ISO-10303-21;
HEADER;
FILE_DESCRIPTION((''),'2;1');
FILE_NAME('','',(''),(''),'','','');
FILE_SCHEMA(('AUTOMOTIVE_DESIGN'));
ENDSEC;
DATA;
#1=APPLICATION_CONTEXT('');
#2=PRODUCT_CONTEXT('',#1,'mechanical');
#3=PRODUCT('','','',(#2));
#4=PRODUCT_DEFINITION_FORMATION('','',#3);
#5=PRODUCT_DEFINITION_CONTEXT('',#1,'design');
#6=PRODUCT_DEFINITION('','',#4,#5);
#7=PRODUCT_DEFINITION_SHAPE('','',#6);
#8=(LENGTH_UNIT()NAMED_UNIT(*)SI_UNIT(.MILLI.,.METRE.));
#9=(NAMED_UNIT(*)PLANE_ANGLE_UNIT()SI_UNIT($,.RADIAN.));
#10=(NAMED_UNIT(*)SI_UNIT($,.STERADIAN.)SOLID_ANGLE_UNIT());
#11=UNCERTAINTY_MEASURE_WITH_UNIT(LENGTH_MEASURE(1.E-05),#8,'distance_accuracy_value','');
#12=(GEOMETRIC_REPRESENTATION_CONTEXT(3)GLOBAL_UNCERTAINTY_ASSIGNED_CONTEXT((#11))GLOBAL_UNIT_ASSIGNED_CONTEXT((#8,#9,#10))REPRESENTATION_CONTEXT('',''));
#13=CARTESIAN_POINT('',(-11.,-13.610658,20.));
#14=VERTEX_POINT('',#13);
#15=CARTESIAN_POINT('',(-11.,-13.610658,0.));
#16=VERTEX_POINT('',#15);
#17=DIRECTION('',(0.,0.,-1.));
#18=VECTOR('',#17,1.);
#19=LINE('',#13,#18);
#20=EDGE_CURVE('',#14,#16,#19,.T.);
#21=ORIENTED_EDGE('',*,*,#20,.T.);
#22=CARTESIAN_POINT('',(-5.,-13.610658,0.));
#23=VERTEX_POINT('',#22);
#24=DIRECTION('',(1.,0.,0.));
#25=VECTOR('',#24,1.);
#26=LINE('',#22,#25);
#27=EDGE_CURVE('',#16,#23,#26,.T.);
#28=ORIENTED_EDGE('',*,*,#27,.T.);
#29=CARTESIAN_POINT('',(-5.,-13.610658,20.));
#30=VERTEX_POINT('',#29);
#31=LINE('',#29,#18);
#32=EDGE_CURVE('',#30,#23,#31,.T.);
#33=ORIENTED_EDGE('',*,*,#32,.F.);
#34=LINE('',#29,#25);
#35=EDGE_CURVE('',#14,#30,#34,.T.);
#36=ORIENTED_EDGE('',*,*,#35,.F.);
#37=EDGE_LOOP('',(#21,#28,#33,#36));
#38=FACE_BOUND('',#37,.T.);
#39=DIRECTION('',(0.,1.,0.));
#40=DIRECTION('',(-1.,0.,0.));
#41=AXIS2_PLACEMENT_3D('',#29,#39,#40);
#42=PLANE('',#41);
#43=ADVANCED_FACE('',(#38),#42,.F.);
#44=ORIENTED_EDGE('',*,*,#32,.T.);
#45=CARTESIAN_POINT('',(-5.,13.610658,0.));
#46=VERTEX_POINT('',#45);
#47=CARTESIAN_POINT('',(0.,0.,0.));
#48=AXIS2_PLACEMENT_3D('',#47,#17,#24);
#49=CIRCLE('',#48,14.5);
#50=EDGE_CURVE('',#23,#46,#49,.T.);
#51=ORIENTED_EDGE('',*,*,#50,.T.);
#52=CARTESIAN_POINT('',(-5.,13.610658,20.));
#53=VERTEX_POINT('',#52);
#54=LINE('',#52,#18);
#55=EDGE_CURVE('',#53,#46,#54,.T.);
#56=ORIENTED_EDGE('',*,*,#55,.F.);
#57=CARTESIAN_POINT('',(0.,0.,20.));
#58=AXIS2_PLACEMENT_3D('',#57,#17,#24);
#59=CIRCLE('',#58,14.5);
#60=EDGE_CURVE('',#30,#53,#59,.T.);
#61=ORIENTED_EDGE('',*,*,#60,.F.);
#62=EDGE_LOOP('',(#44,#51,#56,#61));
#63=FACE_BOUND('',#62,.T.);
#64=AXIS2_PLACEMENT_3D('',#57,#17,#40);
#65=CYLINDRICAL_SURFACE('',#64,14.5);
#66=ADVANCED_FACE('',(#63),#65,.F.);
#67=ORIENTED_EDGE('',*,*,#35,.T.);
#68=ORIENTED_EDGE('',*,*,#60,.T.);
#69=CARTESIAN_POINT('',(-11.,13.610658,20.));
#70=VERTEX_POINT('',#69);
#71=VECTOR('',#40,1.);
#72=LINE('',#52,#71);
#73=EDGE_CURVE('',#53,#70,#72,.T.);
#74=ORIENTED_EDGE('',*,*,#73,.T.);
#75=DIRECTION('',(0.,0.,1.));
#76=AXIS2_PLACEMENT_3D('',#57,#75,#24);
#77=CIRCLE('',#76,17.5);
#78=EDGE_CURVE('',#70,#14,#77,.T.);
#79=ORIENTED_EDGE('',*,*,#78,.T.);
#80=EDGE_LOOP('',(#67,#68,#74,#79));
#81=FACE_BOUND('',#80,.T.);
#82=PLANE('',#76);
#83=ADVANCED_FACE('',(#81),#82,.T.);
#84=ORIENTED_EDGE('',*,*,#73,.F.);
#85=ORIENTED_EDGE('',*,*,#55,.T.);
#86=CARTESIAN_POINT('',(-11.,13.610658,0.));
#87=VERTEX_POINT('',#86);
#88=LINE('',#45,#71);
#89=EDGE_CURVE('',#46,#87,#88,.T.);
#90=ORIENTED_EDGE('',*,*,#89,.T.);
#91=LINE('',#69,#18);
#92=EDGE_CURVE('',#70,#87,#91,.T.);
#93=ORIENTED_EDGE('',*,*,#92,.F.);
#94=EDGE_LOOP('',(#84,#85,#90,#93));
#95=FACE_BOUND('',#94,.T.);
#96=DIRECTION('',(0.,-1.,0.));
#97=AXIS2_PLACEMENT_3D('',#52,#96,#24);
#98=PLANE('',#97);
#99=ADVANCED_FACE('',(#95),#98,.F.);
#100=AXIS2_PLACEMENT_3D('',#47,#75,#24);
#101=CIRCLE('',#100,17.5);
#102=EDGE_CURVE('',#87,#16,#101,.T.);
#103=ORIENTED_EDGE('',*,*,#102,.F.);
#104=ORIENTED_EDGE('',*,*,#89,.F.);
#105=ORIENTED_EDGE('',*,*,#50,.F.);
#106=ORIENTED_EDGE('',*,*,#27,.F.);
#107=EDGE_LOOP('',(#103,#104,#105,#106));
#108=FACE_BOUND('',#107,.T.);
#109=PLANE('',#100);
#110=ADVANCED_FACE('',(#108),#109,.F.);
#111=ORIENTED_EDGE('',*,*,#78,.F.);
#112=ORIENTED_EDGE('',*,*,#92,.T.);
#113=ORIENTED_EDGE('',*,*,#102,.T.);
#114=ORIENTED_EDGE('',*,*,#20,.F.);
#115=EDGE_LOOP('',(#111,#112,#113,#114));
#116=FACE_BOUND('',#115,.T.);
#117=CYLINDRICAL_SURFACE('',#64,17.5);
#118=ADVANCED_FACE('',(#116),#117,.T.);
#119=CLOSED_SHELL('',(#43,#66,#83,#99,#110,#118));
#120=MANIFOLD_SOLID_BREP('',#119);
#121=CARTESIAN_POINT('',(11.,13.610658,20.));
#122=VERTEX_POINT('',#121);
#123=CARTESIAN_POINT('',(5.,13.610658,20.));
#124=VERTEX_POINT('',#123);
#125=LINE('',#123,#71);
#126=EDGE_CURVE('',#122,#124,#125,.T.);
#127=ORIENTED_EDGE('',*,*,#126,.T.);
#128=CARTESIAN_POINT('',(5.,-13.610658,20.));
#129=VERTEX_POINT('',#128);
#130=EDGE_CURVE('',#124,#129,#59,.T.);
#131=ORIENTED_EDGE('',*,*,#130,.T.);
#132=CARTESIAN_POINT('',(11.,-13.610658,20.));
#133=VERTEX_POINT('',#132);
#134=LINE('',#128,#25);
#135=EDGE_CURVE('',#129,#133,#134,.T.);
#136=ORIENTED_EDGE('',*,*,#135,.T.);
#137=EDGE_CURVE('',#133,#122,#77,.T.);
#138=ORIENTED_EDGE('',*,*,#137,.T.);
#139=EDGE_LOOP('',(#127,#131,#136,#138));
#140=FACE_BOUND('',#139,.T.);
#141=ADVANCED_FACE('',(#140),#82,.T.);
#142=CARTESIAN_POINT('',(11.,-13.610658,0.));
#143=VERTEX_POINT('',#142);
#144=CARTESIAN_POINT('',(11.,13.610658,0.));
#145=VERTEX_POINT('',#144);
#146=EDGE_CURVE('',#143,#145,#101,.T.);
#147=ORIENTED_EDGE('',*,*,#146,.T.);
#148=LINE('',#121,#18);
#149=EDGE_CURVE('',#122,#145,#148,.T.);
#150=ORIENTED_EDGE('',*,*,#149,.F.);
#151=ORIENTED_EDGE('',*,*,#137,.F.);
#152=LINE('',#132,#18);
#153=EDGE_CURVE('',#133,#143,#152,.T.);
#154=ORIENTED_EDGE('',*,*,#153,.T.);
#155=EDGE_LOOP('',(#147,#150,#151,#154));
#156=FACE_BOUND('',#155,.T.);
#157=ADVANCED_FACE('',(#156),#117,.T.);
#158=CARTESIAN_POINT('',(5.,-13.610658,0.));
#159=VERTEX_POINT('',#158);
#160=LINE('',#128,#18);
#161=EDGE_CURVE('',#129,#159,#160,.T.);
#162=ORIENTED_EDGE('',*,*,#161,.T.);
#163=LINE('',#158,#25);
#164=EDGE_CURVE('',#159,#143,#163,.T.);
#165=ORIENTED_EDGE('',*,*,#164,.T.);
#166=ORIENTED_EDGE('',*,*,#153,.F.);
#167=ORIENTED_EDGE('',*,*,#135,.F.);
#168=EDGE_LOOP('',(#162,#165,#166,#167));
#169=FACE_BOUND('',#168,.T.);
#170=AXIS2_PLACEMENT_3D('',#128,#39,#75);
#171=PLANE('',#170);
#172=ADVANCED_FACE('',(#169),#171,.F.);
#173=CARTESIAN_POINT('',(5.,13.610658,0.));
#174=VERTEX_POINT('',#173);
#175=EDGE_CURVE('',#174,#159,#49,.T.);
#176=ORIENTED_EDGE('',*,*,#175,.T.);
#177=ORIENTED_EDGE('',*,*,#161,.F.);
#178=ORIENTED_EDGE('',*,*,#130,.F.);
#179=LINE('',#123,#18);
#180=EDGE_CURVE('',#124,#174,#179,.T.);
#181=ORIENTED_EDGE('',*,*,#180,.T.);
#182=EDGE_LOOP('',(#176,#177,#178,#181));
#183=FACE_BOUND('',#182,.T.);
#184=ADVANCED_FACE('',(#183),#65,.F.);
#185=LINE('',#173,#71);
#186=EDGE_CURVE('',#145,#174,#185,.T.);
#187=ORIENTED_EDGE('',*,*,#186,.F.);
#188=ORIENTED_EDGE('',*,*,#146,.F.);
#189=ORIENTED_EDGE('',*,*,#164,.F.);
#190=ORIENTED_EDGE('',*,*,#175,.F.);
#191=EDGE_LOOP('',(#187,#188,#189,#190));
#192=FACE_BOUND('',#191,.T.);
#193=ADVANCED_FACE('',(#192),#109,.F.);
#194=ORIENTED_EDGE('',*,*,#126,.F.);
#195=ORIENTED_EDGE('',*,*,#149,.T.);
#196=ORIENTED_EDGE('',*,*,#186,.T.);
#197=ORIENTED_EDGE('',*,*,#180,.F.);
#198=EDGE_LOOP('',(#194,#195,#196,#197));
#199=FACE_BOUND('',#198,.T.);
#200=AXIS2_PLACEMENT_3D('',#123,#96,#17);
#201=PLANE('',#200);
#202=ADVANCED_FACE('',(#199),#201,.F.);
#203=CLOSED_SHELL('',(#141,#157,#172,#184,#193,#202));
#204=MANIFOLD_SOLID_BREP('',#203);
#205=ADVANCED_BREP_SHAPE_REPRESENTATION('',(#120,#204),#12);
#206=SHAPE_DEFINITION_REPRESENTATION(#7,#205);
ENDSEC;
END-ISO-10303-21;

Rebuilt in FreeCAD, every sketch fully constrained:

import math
import FreeCAD as App
import Part
import Sketcher

doc = App.newDocument("Part")
params = doc.addObject("Spreadsheet::Sheet", "Params")
for row, (alias, value) in enumerate([
    ("sketch1_radius", "17.5 mm"),
    ("sketch1_radius2", "14.5 mm"),
    ("sketch1_width", "6 mm"),
    ("pad1_length", "20 mm"),
    ("sketch2_radius", "14.5 mm"),
    ("sketch2_radius2", "17.5 mm"),
    ("sketch2_width", "6 mm"),
    ("pad2_length", "20 mm"),
], start=1):
    params.set(f"A{row}", alias)
    params.set(f"B{row}", "=" + value)
    params.setAlias(f"B{row}", alias)

body = doc.addObject("PartDesign::Body", "Body")

sketch1 = doc.addObject("Sketcher::SketchObject", "Sketch")
body.addObject(sketch1)
sketch1.AttachmentSupport = (doc.XY_Plane, [""])
sketch1.MapMode = "FlatFace"
sketch1.addGeometry(Part.LineSegment(App.Vector(-5, 13.610658, 0), App.Vector(-11, 13.610658, 0)), False)
sketch1.addGeometry(Part.ArcOfCircle(Part.Circle(App.Vector(0, 0, 0), App.Vector(0, 0, 1), 17.5), math.radians(128.944804), math.radians(231.055196)), False)
sketch1.addGeometry(Part.LineSegment(App.Vector(-11, -13.610658, 0), App.Vector(-5, -13.610658, 0)), False)
sketch1.addGeometry(Part.ArcOfCircle(Part.Circle(App.Vector(0, 0, 0), App.Vector(0, 0, 1), 14.5), math.radians(110.171271), math.radians(249.828729)), False)
sketch1.addConstraint(Sketcher.Constraint("Coincident", 0, 2, 1, 1))
sketch1.addConstraint(Sketcher.Constraint("Coincident", 1, 2, 2, 1))
sketch1.addConstraint(Sketcher.Constraint("Coincident", 2, 2, 3, 2))
sketch1.addConstraint(Sketcher.Constraint("Coincident", 3, 1, 0, 1))
sketch1.addConstraint(Sketcher.Constraint("Horizontal", 0))
sketch1.addConstraint(Sketcher.Constraint("Horizontal", 2))
sketch1.addConstraint(Sketcher.Constraint("Coincident", 1, 3, -1, 1))
sketch1.addConstraint(Sketcher.Constraint("Coincident", 3, 3, -1, 1))
sketch1.addConstraint(Sketcher.Constraint("Vertical", 0, 2, 1, 2))
sketch1.addConstraint(Sketcher.Constraint("Radius", 1, 17.5))
sketch1.addConstraint(Sketcher.Constraint("Radius", 3, 14.5))
sketch1.addConstraint(Sketcher.Constraint("DistanceX", 0, 2, 0, 1, 6.0))
sketch1.setExpression("Constraints[9]", "Params.sketch1_radius")
sketch1.setExpression("Constraints[10]", "Params.sketch1_radius2")
sketch1.setExpression("Constraints[11]", "Params.sketch1_width")
pad1 = doc.addObject("PartDesign::Pad", "Pad")
body.addObject(pad1)
pad1.Profile = sketch1
pad1.setExpression("Length", "Params.pad1_length")
body2 = doc.addObject("PartDesign::Body", "Body001")

sketch2 = doc.addObject("Sketcher::SketchObject", "Sketch001")
body2.addObject(sketch2)
sketch2.AttachmentSupport = (doc.getObject("XY_Plane001"), [""])
sketch2.MapMode = "FlatFace"
sketch2.addGeometry(Part.LineSegment(App.Vector(11, 13.610658, 0), App.Vector(5, 13.610658, 0)), False)
sketch2.addGeometry(Part.ArcOfCircle(Part.Circle(App.Vector(0, 0, 0), App.Vector(0, 0, 1), 14.5), math.radians(-69.828729), math.radians(69.828729)), False)
sketch2.addGeometry(Part.LineSegment(App.Vector(5, -13.610658, 0), App.Vector(11, -13.610658, 0)), False)
sketch2.addGeometry(Part.ArcOfCircle(Part.Circle(App.Vector(0, 0, 0), App.Vector(0, 0, 1), 17.5), math.radians(-51.055196), math.radians(51.055196)), False)
sketch2.addConstraint(Sketcher.Constraint("Coincident", 0, 2, 1, 2))
sketch2.addConstraint(Sketcher.Constraint("Coincident", 1, 1, 2, 1))
sketch2.addConstraint(Sketcher.Constraint("Coincident", 2, 2, 3, 1))
sketch2.addConstraint(Sketcher.Constraint("Coincident", 3, 2, 0, 1))
sketch2.addConstraint(Sketcher.Constraint("Horizontal", 0))
sketch2.addConstraint(Sketcher.Constraint("Horizontal", 2))
sketch2.addConstraint(Sketcher.Constraint("Coincident", 1, 3, -1, 1))
sketch2.addConstraint(Sketcher.Constraint("Coincident", 3, 3, -1, 1))
sketch2.addConstraint(Sketcher.Constraint("Vertical", 0, 2, 1, 1))
sketch2.addConstraint(Sketcher.Constraint("Radius", 1, 14.5))
sketch2.addConstraint(Sketcher.Constraint("Radius", 3, 17.5))
sketch2.addConstraint(Sketcher.Constraint("DistanceX", 0, 2, 0, 1, 6.0))
sketch2.setExpression("Constraints[9]", "Params.sketch2_radius")
sketch2.setExpression("Constraints[10]", "Params.sketch2_radius2")
sketch2.setExpression("Constraints[11]", "Params.sketch2_width")
pad2 = doc.addObject("PartDesign::Pad", "Pad001")
body2.addObject(pad2)
pad2.Profile = sketch2
pad2.setExpression("Length", "Params.pad2_length")

doc.recompute()
